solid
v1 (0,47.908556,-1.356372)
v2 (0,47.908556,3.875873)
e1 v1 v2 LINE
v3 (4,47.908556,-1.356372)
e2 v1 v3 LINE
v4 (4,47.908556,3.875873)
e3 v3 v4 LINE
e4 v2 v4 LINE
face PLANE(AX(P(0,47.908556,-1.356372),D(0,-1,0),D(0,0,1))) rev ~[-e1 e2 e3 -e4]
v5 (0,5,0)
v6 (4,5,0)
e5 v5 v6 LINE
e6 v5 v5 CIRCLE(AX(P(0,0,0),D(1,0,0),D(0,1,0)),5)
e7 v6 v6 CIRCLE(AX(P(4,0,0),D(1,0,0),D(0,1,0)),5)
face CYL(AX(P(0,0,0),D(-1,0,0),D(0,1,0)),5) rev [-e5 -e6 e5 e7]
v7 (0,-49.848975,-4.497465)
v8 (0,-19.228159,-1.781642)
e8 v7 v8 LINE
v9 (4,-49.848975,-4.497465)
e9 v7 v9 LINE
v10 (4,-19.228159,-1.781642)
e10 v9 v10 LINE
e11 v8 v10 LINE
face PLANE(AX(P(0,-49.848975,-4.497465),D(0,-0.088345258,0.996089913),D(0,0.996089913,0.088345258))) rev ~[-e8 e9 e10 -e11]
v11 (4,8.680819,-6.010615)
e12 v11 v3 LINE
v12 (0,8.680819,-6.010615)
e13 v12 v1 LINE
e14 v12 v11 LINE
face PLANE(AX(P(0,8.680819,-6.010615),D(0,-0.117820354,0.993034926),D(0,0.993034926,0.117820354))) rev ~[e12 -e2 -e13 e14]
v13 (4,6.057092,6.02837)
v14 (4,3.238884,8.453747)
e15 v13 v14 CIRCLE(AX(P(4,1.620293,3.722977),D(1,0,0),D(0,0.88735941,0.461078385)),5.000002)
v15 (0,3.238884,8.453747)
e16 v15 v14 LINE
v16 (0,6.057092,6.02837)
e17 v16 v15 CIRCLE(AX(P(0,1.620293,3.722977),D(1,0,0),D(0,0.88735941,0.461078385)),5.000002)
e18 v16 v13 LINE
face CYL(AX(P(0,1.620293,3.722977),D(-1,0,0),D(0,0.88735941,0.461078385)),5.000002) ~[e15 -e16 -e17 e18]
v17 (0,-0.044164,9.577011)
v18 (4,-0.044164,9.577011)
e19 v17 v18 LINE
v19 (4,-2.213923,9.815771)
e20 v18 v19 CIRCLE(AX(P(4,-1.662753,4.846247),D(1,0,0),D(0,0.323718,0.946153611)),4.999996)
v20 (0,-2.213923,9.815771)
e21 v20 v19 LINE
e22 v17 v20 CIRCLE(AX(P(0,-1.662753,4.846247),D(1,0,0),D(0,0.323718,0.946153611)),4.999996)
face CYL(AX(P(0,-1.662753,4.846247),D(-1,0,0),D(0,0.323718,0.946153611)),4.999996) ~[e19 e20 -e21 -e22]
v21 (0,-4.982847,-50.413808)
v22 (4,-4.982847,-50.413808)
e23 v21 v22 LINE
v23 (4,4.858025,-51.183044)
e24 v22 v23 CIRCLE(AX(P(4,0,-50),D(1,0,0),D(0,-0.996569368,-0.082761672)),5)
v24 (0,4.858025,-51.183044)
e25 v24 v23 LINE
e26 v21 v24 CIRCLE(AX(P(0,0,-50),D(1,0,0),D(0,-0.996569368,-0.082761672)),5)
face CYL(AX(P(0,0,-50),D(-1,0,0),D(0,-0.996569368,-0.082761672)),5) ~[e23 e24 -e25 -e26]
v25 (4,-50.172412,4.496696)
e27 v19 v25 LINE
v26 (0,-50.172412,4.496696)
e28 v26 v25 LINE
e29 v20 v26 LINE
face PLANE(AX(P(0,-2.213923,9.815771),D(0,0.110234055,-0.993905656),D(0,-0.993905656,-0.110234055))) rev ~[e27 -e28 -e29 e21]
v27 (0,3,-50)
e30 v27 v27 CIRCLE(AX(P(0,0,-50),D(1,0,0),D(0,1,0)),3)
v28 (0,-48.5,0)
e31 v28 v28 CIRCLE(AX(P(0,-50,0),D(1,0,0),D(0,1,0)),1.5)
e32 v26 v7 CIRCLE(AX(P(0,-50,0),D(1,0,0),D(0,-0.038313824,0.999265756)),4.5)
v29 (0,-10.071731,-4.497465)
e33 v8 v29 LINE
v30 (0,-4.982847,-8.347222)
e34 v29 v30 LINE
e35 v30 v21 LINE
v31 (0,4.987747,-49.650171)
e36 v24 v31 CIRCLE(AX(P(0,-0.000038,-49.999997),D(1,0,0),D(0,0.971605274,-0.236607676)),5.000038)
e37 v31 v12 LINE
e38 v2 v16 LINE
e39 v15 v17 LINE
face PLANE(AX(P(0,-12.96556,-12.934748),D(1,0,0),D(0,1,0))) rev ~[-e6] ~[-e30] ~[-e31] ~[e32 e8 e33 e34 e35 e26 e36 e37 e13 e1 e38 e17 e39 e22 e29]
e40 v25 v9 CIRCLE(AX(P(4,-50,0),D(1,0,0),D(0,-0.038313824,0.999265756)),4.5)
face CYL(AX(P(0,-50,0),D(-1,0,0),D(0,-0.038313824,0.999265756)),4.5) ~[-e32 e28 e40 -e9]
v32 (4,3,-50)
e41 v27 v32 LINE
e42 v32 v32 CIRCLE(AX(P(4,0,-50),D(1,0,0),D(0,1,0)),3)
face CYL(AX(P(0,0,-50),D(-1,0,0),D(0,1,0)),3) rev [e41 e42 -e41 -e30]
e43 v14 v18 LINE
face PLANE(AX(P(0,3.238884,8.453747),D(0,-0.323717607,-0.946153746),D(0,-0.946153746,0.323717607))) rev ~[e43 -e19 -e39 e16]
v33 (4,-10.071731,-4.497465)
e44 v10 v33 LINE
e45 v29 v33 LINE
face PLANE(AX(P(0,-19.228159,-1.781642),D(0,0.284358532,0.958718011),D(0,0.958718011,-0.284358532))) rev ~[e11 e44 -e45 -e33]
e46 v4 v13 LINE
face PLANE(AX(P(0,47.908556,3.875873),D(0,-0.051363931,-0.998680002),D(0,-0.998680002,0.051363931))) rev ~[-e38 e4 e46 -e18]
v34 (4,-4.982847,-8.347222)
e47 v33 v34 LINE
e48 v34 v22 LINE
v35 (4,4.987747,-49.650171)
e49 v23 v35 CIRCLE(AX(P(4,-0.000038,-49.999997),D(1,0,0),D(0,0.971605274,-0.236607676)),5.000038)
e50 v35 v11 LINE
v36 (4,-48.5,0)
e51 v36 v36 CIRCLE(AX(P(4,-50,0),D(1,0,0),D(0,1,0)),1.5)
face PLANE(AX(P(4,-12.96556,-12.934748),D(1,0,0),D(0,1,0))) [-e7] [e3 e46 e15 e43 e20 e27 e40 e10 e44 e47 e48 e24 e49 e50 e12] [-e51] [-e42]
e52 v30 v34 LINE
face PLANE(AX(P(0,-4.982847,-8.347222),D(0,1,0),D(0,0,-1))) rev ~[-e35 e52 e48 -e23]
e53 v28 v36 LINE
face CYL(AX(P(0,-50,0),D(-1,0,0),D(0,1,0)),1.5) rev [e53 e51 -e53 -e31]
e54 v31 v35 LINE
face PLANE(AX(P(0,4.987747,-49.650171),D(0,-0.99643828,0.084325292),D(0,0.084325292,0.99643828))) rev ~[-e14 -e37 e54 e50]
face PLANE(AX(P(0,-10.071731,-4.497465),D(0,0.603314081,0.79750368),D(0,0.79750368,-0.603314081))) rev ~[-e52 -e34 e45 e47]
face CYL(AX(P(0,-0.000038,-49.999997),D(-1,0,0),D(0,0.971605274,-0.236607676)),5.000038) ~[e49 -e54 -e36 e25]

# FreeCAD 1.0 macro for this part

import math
import FreeCAD as App
import Part
import Sketcher
Q = App.Units.Quantity

doc = App.newDocument("Part")
body = doc.addObject("PartDesign::Body", "Body")

sketch1 = body.newObject("Sketcher::SketchObject", "Sketch")
sketch1.AttachmentSupport = (doc.getObject("YZ_Plane"), [""])
sketch1.MapMode = "FlatFace"
sketch1.addGeometry([
    Part.LineSegment(App.Vector(-2.213923, 9.815771, 0), App.Vector(-50.172412, 4.496696, 0)),
    Part.ArcOfCircle(Part.Circle(App.Vector(-50, 0, 0), App.Vector(0, 0, 1), 4.5), math.radians(92.195758), math.radians(271.923268)),
    Part.LineSegment(App.Vector(-49.848975, -4.497465, 0), App.Vector(-19.228159, -1.781642, 0)),
    Part.LineSegment(App.Vector(-19.228159, -1.781642, 0), App.Vector(-10.071731, -4.497465, 0)),
    Part.LineSegment(App.Vector(-10.071731, -4.497465, 0), App.Vector(-4.982847, -8.347222, 0)),
    Part.LineSegment(App.Vector(-4.982847, -8.347222, 0), App.Vector(-4.982847, -50.413808, 0)),
    Part.ArcOfCircle(Part.Circle(App.Vector(0, -50, 0), App.Vector(0, 0, 1), 5), math.radians(-175.252675), math.radians(-13.686479)),
    Part.ArcOfCircle(Part.Circle(App.Vector(-0.000038, -49.999997, 0), App.Vector(0, 0, 1), 5.000038), math.radians(-13.686409), math.radians(4.011953)),
    Part.LineSegment(App.Vector(4.987747, -49.650171, 0), App.Vector(8.680819, -6.010615, 0)),
    Part.LineSegment(App.Vector(8.680819, -6.010615, 0), App.Vector(47.908556, -1.356372, 0)),
    Part.LineSegment(App.Vector(47.908556, -1.356372, 0), App.Vector(47.908556, 3.875873, 0)),
    Part.LineSegment(App.Vector(47.908556, 3.875873, 0), App.Vector(6.057092, 6.02837, 0)),
    Part.ArcOfCircle(Part.Circle(App.Vector(1.620293, 3.722977, 0), App.Vector(0, 0, 1), 5.000002), math.radians(27.456716), math.radians(71.112075)),
    Part.LineSegment(App.Vector(3.238884, 8.453747, 0), App.Vector(-0.044164, 9.577011, 0)),
    Part.ArcOfCircle(Part.Circle(App.Vector(-1.662753, 4.846247, 0), App.Vector(0, 0, 1), 4.999996), math.radians(71.112076), math.radians(96.328812)),
    Part.Circle(App.Vector(0, -50, 0), App.Vector(0, 0, 1), 3),
    Part.Circle(App.Vector(-50, 0, 0), App.Vector(0, 0, 1), 1.5),
    Part.Circle(App.Vector(0, 0, 0), App.Vector(0, 0, 1), 5),
], False)
sketch1.addConstraint([
    Sketcher.Constraint("Coincident", 0, 2, 1, 1),
    Sketcher.Constraint("Coincident", 1, 2, 2, 1),
    Sketcher.Constraint("Coincident", 2, 2, 3, 1),
    Sketcher.Constraint("Coincident", 3, 2, 4, 1),
    Sketcher.Constraint("Coincident", 4, 2, 5, 1),
    Sketcher.Constraint("Coincident", 5, 2, 6, 1),
    Sketcher.Constraint("Coincident", 6, 2, 7, 1),
    Sketcher.Constraint("Coincident", 7, 2, 8, 1),
    Sketcher.Constraint("Coincident", 8, 2, 9, 1),
    Sketcher.Constraint("Coincident", 9, 2, 10, 1),
    Sketcher.Constraint("Coincident", 10, 2, 11, 1),
    Sketcher.Constraint("Coincident", 11, 2, 12, 1),
    Sketcher.Constraint("Coincident", 12, 2, 13, 1),
    Sketcher.Constraint("Coincident", 13, 2, 14, 1),
    Sketcher.Constraint("Coincident", 14, 2, 0, 1),
    Sketcher.Constraint("Vertical", 5),
    Sketcher.Constraint("Vertical", 10),
    Sketcher.Constraint("Coincident", 17, 3, -1, 1),
    Sketcher.Constraint("Coincident", 15, 3, 6, 3),
    Sketcher.Constraint("Coincident", 16, 3, 1, 3),
    Sketcher.Constraint("PointOnObject", 1, 3, -1),
    Sketcher.Constraint("PointOnObject", 6, 3, -2),
    Sketcher.Constraint("Diameter", 15, Q("6 mm")),
    Sketcher.Constraint("Diameter", 16, Q("3 mm")),
    Sketcher.Constraint("Diameter", 17, Q("10 mm")),
    Sketcher.Constraint("Radius", 6, Q("5 mm")),
    Sketcher.Constraint("Radius", 12, Q("5.000002 mm")),
    Sketcher.Constraint("Radius", 1, Q("4.5 mm")),
    Sketcher.Constraint("DistanceX", 1, 3, -1, 1, Q("50 mm")),
    Sketcher.Constraint("DistanceY", 6, 3, -1, 1, Q("50 mm")),
    Sketcher.Constraint("Radius", 7, Q("5.000038 mm")),
    Sketcher.Constraint("Radius", 14, Q("4.999996 mm")),
    Sketcher.Constraint("Distance", 3, Q("9.5507 mm")),
    Sketcher.Constraint("DistanceY", 4, 2, 12, 3, Q("12.070199 mm")),
    Sketcher.Constraint("DistanceX", 12, 3, 11, 2, Q("4.436799 mm")),
    Sketcher.Constraint("DistanceY", 14, 3, 12, 2, Q("3.6075 mm")),
    Sketcher.Constraint("DistanceY", 11, 2, 14, 2, Q("3.787401 mm")),
    Sketcher.Constraint("Distance", 11, Q("41.906781 mm")),
    Sketcher.Constraint("Distance", 13, Q("3.469888 mm")),
    Sketcher.Constraint("DistanceY", 5, 2, 5, 1, Q("42.066586 mm")),
    Sketcher.Constraint("DistanceY", 10, 1, 10, 2, Q("5.232245 mm")),
    Sketcher.Constraint("DistanceX", 2, 2, -1, 1, Q("19.228159 mm")),
    Sketcher.Constraint("DistanceX", 3, 2, -1, 1, Q("10.071731 mm")),
    Sketcher.Constraint("DistanceY", 5, 2, -1, 1, Q("50.413808 mm")),
    Sketcher.Constraint("DistanceY", 7, 2, -1, 1, Q("49.650171 mm")),
    Sketcher.Constraint("DistanceX", -1, 1, 8, 2, Q("8.680819 mm")),
    Sketcher.Constraint("DistanceY", 9, 2, -1, 1, Q("1.356372 mm")),
    Sketcher.Constraint("DistanceY", -1, 1, 13, 2, Q("9.577011 mm")),
    Sketcher.Constraint("DistanceX", 1, 3, 7, 3, Q("49.999961 mm")),
    Sketcher.Constraint("DistanceX", 7, 3, 12, 3, Q("1.620332 mm")),
    Sketcher.Constraint("DistanceY", 12, 3, 14, 3, Q("1.123269 mm")),
    Sketcher.Constraint("DistanceX", 0, 2, 14, 3, Q("48.509659 mm")),
    Sketcher.Constraint("DistanceY", 1, 2, 0, 2, Q("8.994161 mm")),
    Sketcher.Constraint("DistanceY", 2, 2, 14, 3, Q("6.627889 mm")),
    Sketcher.Constraint("DistanceX", 5, 2, 6, 2, Q("9.840872 mm")),
    Sketcher.Constraint("DistanceY", 8, 2, 14, 3, Q("10.856862 mm")),
])
pad1 = body.newObject("PartDesign::Pad", "Pad")
pad1.Profile = sketch1
pad1.Length = 4

doc.recompute()
